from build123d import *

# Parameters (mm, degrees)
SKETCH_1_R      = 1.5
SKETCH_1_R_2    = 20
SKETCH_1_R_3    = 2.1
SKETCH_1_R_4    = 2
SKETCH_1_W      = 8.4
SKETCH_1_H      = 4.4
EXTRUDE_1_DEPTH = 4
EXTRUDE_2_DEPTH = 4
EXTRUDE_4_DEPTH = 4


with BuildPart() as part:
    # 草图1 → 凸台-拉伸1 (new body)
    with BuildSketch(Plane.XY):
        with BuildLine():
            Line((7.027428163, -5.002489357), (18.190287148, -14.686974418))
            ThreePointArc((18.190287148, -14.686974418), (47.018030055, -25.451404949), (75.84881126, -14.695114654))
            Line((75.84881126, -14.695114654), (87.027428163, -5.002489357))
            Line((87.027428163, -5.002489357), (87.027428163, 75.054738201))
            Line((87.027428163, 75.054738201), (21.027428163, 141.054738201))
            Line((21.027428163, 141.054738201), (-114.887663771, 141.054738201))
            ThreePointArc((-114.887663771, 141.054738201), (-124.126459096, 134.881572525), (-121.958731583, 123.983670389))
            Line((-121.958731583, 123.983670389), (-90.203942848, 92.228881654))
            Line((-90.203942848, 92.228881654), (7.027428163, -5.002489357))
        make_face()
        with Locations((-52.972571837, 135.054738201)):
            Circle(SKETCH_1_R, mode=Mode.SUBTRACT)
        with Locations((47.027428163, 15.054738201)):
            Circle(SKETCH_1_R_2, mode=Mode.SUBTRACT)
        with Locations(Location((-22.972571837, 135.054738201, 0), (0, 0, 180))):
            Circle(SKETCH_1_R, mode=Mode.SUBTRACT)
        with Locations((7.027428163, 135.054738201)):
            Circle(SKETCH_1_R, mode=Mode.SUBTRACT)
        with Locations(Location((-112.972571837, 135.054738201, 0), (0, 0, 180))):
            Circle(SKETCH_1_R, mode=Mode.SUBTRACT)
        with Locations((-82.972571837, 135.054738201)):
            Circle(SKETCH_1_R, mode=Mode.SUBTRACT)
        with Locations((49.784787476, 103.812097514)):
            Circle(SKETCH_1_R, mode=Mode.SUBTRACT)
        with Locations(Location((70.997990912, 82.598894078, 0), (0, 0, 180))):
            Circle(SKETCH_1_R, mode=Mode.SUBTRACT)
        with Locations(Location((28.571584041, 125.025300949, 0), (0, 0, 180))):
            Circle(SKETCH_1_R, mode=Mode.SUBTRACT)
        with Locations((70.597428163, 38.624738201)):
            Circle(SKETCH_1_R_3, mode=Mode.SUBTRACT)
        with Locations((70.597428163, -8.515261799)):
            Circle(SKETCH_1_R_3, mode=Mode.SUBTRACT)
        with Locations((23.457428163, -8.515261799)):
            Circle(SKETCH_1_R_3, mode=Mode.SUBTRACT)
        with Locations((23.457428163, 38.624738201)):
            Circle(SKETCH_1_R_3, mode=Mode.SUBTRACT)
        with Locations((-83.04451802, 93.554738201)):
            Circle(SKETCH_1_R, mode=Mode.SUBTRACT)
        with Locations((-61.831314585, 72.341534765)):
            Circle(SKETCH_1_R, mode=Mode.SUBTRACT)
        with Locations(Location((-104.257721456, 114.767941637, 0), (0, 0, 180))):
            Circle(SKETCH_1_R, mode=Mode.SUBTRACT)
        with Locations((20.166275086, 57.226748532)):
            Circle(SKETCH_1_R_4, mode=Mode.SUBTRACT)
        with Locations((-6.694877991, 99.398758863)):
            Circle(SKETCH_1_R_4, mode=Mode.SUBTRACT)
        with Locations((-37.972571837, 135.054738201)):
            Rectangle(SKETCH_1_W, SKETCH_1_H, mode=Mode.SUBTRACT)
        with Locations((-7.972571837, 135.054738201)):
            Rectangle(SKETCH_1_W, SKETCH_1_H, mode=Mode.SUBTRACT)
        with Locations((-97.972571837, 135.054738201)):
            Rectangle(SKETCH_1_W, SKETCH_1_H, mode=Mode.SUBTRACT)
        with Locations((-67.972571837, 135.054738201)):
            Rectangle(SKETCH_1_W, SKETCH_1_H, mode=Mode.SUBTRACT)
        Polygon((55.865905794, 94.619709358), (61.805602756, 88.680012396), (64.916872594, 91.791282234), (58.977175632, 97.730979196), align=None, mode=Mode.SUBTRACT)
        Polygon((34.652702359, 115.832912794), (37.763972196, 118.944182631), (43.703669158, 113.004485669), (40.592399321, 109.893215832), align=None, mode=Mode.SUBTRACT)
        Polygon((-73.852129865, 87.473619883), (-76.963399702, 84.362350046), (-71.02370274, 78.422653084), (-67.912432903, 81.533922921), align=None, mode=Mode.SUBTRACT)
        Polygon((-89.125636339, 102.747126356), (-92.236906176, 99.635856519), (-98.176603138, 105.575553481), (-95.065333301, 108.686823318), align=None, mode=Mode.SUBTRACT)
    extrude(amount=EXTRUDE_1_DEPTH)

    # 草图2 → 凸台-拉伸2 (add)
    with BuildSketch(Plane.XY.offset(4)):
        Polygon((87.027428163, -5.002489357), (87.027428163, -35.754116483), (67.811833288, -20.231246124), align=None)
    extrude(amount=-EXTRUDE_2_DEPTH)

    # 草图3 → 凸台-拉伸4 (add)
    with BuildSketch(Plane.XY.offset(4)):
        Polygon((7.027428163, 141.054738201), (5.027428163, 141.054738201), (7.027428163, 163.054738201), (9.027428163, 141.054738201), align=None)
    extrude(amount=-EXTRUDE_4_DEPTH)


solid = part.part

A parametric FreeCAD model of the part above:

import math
import FreeCAD as App
import Part
import Sketcher
Q = App.Units.Quantity


def add_polygon(sketch, points):
    """Adds a closed chain of lines whose ends are joined by coincident constraints."""
    first, n = sketch.GeometryCount, len(points)
    for a, b in zip(points, points[1:] + points[:1]):
        sketch.addGeometry(Part.LineSegment(App.Vector(*a, 0), App.Vector(*b, 0)), False)
    for i in range(n):
        sketch.addConstraint(Sketcher.Constraint("Coincident", first + i, 2, first + (i + 1) % n, 1))

doc = App.newDocument("Part")
params = doc.addObject("Spreadsheet::Sheet", "Params")
for row, (alias, value) in enumerate([
    ("sketch1_diameter", "40 mm"),
    ("sketch1_diameter2", "4 mm"),
    ("sketch1_diameter3", "3 mm"),
    ("sketch1_radius", "44 mm"),
    ("sketch1_radius2", "10 mm"),
    ("pad1_length", "4 mm"),
    ("pad2_length", "4 mm"),
    ("sketch3_width", "4 mm"),
    ("pad3_length", "4 mm"),
], start=1):
    params.set(f"A{row}", alias)
    params.set(f"B{row}", "=" + value)
    params.setAlias(f"B{row}", alias)

body = doc.addObject("PartDesign::Body", "Body")

# Sketch on XY plane
sketch1 = body.newObject("Sketcher::SketchObject", "Sketch")
sketch1.AttachmentSupport = (doc.getObject("XY_Plane"), [""])
sketch1.MapMode = "FlatFace"
sketch1.addGeometry(Part.LineSegment(App.Vector(7.027428, -5.002489, 0), App.Vector(18.190287, -14.686974, 0)), False)  # 0
sketch1.addGeometry(Part.ArcOfCircle(Part.Circle(App.Vector(47.024242, 18.548595, 0), App.Vector(0, 0, 1), 44), math.radians(-130.943703), math.radians(-49.072475)), False)  # 1
sketch1.addGeometry(Part.LineSegment(App.Vector(75.848811, -14.695115, 0), App.Vector(87.027428, -5.002489, 0)), False)  # 2
sketch1.addGeometry(Part.LineSegment(App.Vector(87.027428, -5.002489, 0), App.Vector(87.027428, 75.054738, 0)), False)  # 3
sketch1.addGeometry(Part.LineSegment(App.Vector(87.027428, 75.054738, 0), App.Vector(21.027428, 141.054738, 0)), False)  # 4
sketch1.addGeometry(Part.LineSegment(App.Vector(21.027428, 141.054738, 0), App.Vector(-114.887664, 141.054738, 0)), False)  # 5
sketch1.addGeometry(Part.ArcOfCircle(Part.Circle(App.Vector(-114.887664, 131.054738, 0), App.Vector(0, 0, 1), 10), math.radians(90), math.radians(225)), False)  # 6
sketch1.addGeometry(Part.LineSegment(App.Vector(-121.958732, 123.98367, 0), App.Vector(7.027428, -5.002489, 0)), False)  # 7
sketch1.addGeometry(Part.Circle(App.Vector(23.457428, -8.515262, 0), App.Vector(0, 0, 1), 2.1), False)  # 8
sketch1.addGeometry(Part.Circle(App.Vector(70.597428, -8.515262, 0), App.Vector(0, 0, 1), 2.1), False)  # 9
sketch1.addGeometry(Part.Circle(App.Vector(47.027428, 15.054738, 0), App.Vector(0, 0, 1), 20), False)  # 10
sketch1.addGeometry(Part.Circle(App.Vector(23.457428, 38.624738, 0), App.Vector(0, 0, 1), 2.1), False)  # 11
sketch1.addGeometry(Part.Circle(App.Vector(20.166275, 57.226749, 0), App.Vector(0, 0, 1), 2), False)  # 12
sketch1.addGeometry(Part.Circle(App.Vector(70.597428, 38.624738, 0), App.Vector(0, 0, 1), 2.1), False)  # 13
add_polygon(sketch1, [(-76.9634, 84.36235), (-73.85213, 87.47362), (-67.912433, 81.533923), (-71.023703, 78.422653)])  # lines 14-17
sketch1.addGeometry(Part.Circle(App.Vector(-83.044518, 93.554738, 0), App.Vector(0, 0, 1), 1.5), False)  # 18
sketch1.addGeometry(Part.Circle(App.Vector(-61.831315, 72.341535, 0), App.Vector(0, 0, 1), 1.5), False)  # 19
add_polygon(sketch1, [(-95.065333, 108.686823), (-89.125636, 102.747126), (-92.236906, 99.635857), (-98.176603, 105.575553)])  # lines 20-23
sketch1.addGeometry(Part.Circle(App.Vector(-104.257721, 114.767942, 0), App.Vector(0, 0, 1), 1.5), False)  # 24
sketch1.addGeometry(Part.Circle(App.Vector(-112.972572, 135.054738, 0), App.Vector(0, 0, 1), 1.5), False)  # 25
add_polygon(sketch1, [(-93.772572, 132.854738), (-102.172572, 132.854738), (-102.172572, 137.254738), (-93.772572, 137.254738)])  # lines 26-29
sketch1.addGeometry(Part.Circle(App.Vector(-82.972572, 135.054738, 0), App.Vector(0, 0, 1), 1.5), False)  # 30
add_polygon(sketch1, [(-63.772572, 132.854738), (-72.172572, 132.854738), (-72.172572, 137.254738), (-63.772572, 137.254738)])  # lines 31-34
sketch1.addGeometry(Part.Circle(App.Vector(-52.972572, 135.054738, 0), App.Vector(0, 0, 1), 1.5), False)  # 35
add_polygon(sketch1, [(-33.772572, 132.854738), (-42.172572, 132.854738), (-42.172572, 137.254738), (-33.772572, 137.254738)])  # lines 36-39
sketch1.addGeometry(Part.Circle(App.Vector(-22.972572, 135.054738, 0), App.Vector(0, 0, 1), 1.5), False)  # 40
sketch1.addGeometry(Part.Circle(App.Vector(-6.694878, 99.398759, 0), App.Vector(0, 0, 1), 2), False)  # 41
sketch1.addGeometry(Part.Circle(App.Vector(70.997991, 82.598894, 0), App.Vector(0, 0, 1), 1.5), False)  # 42
add_polygon(sketch1, [(61.805603, 88.680012), (55.865906, 94.619709), (58.977176, 97.730979), (64.916873, 91.791282)])  # lines 43-46
add_polygon(sketch1, [(-3.772572, 132.854738), (-12.172572, 132.854738), (-12.172572, 137.254738), (-3.772572, 137.254738)])  # lines 47-50
sketch1.addGeometry(Part.Circle(App.Vector(7.027428, 135.054738, 0), App.Vector(0, 0, 1), 1.5), False)  # 51
add_polygon(sketch1, [(40.592399, 109.893216), (34.652702, 115.832913), (37.763972, 118.944183), (43.703669, 113.004486)])  # lines 52-55
sketch1.addGeometry(Part.Circle(App.Vector(49.784787, 103.812098, 0), App.Vector(0, 0, 1), 1.5), False)  # 56
sketch1.addGeometry(Part.Circle(App.Vector(28.571584, 125.025301, 0), App.Vector(0, 0, 1), 1.5), False)  # 57
sketch1.addConstraint(Sketcher.Constraint("Tangent", 0, 2, 1, 1))
sketch1.addConstraint(Sketcher.Constraint("Tangent", 1, 2, 2, 1))
sketch1.addConstraint(Sketcher.Constraint("Coincident", 2, 2, 3, 1))
sketch1.addConstraint(Sketcher.Constraint("Coincident", 3, 2, 4, 1))
sketch1.addConstraint(Sketcher.Constraint("Coincident", 4, 2, 5, 1))
sketch1.addConstraint(Sketcher.Constraint("Tangent", 5, 2, 6, 1))
sketch1.addConstraint(Sketcher.Constraint("Tangent", 6, 2, 7, 1))
sketch1.addConstraint(Sketcher.Constraint("Coincident", 7, 2, 0, 1))
sketch1.addConstraint(Sketcher.Constraint("Vertical", 3))
sketch1.addConstraint(Sketcher.Constraint("Horizontal", 5))
sketch1.addConstraint(Sketcher.Constraint("Horizontal", 26))
sketch1.addConstraint(Sketcher.Constraint("Vertical", 27))
sketch1.addConstraint(Sketcher.Constraint("Horizontal", 28))
sketch1.addConstraint(Sketcher.Constraint("Vertical", 29))
sketch1.addConstraint(Sketcher.Constraint("Horizontal", 31))
sketch1.addConstraint(Sketcher.Constraint("Vertical", 32))
sketch1.addConstraint(Sketcher.Constraint("Horizontal", 33))
sketch1.addConstraint(Sketcher.Constraint("Vertical", 34))
sketch1.addConstraint(Sketcher.Constraint("Horizontal", 36))
sketch1.addConstraint(Sketcher.Constraint("Vertical", 37))
sketch1.addConstraint(Sketcher.Constraint("Horizontal", 38))
sketch1.addConstraint(Sketcher.Constraint("Vertical", 39))
sketch1.addConstraint(Sketcher.Constraint("Horizontal", 47))
sketch1.addConstraint(Sketcher.Constraint("Vertical", 48))
sketch1.addConstraint(Sketcher.Constraint("Horizontal", 49))
sketch1.addConstraint(Sketcher.Constraint("Vertical", 50))
sketch1.addConstraint(Sketcher.Constraint("Equal", 8, 9))
sketch1.addConstraint(Sketcher.Constraint("Equal", 9, 11))
sketch1.addConstraint(Sketcher.Constraint("Equal", 11, 13))
sketch1.addConstraint(Sketcher.Constraint("Equal", 18, 19))
sketch1.addConstraint(Sketcher.Constraint("Equal", 19, 24))
sketch1.addConstraint(Sketcher.Constraint("Equal", 24, 25))
sketch1.addConstraint(Sketcher.Constraint("Equal", 25, 30))
sketch1.addConstraint(Sketcher.Constraint("Equal", 30, 35))
sketch1.addConstraint(Sketcher.Constraint("Equal", 35, 40))
sketch1.addConstraint(Sketcher.Constraint("Equal", 12, 41))
sketch1.addConstraint(Sketcher.Constraint("Equal", 40, 42))
sketch1.addConstraint(Sketcher.Constraint("Equal", 42, 51))
sketch1.addConstraint(Sketcher.Constraint("Equal", 51, 56))
sketch1.addConstraint(Sketcher.Constraint("Equal", 56, 57))
sketch1.addConstraint(Sketcher.Constraint("Parallel", 4, 7))
sketch1.addConstraint(Sketcher.Constraint("Perpendicular", 7, 14))
sketch1.addConstraint(Sketcher.Constraint("Perpendicular", 14, 15))
sketch1.addConstraint(Sketcher.Constraint("Perpendicular", 15, 16))
sketch1.addConstraint(Sketcher.Constraint("Perpendicular", 16, 17))
sketch1.addConstraint(Sketcher.Constraint("Parallel", 17, 20))
sketch1.addConstraint(Sketcher.Constraint("Perpendicular", 20, 21))
sketch1.addConstraint(Sketcher.Constraint("Perpendicular", 21, 22))
sketch1.addConstraint(Sketcher.Constraint("Perpendicular", 22, 23))
sketch1.addConstraint(Sketcher.Constraint("Perpendicular", 23, 43))
sketch1.addConstraint(Sketcher.Constraint("Perpendicular", 43, 44))
sketch1.addConstraint(Sketcher.Constraint("Perpendicular", 44, 45))
sketch1.addConstraint(Sketcher.Constraint("Perpendicular", 45, 46))
sketch1.addConstraint(Sketcher.Constraint("Perpendicular", 46, 52))
sketch1.addConstraint(Sketcher.Constraint("Perpendicular", 52, 53))
sketch1.addConstraint(Sketcher.Constraint("Perpendicular", 53, 54))
sketch1.addConstraint(Sketcher.Constraint("Perpendicular", 54, 55))
sketch1.addConstraint(Sketcher.Constraint("Horizontal", 8, 3, 9, 3))
sketch1.addConstraint(Sketcher.Constraint("Horizontal", 11, 3, 13, 3))
sketch1.addConstraint(Sketcher.Constraint("Horizontal", 25, 3, 30, 3))
sketch1.addConstraint(Sketcher.Constraint("Horizontal", 30, 3, 35, 3))
sketch1.addConstraint(Sketcher.Constraint("Horizontal", 35, 3, 40, 3))
sketch1.addConstraint(Sketcher.Constraint("Horizontal", 40, 3, 51, 3))
sketch1.addConstraint(Sketcher.Constraint("Horizontal", 2, 2, 7, 2))
sketch1.addConstraint(Sketcher.Constraint("Horizontal", 29, 2, 31, 2))
sketch1.addConstraint(Sketcher.Constraint("Horizontal", 28, 2, 32, 2))
sketch1.addConstraint(Sketcher.Constraint("Horizontal", 34, 2, 36, 2))
sketch1.addConstraint(Sketcher.Constraint("Horizontal", 33, 2, 37, 2))
sketch1.addConstraint(Sketcher.Constraint("Horizontal", 39, 2, 47, 2))
sketch1.addConstraint(Sketcher.Constraint("Horizontal", 38, 2, 48, 2))
sketch1.addConstraint(Sketcher.Constraint("Vertical", 8, 3, 11, 3))
sketch1.addConstraint(Sketcher.Constraint("Vertical", 9, 3, 13, 3))
sketch1.addConstraint(Sketcher.Constraint("Vertical", 51, 3, 7, 2))
sketch1.addConstraint(Sketcher.Constraint("Equal", 28, 31))
sketch1.addConstraint(Sketcher.Constraint("Equal", 33, 36))
sketch1.addConstraint(Sketcher.Constraint("Equal", 38, 47))
sketch1.addConstraint(Sketcher.Constraint("Equal", 17, 20))
sketch1.addConstraint(Sketcher.Constraint("Equal", 16, 21))
sketch1.addConstraint(Sketcher.Constraint("Equal", 22, 43))
sketch1.addConstraint(Sketcher.Constraint("Equal", 23, 44))
sketch1.addConstraint(Sketcher.Constraint("Equal", 45, 52))
sketch1.addConstraint(Sketcher.Constraint("Equal", 46, 53))
sketch1.addConstraint(Sketcher.Constraint("Diameter", 10, 40.0))
sketch1.addConstraint(Sketcher.Constraint("Diameter", 12, 4.0))
sketch1.addConstraint(Sketcher.Constraint("Diameter", 18, 3.0))
sketch1.addConstraint(Sketcher.Constraint("Radius", 1, 44.0))
sketch1.addConstraint(Sketcher.Constraint("Radius", 6, 10.0))
sketch1.addConstraint(Sketcher.Constraint("Diameter", 8, 4.2))
sketch1.addConstraint(Sketcher.Constraint("Angle", 4, Q("135 deg")))
sketch1.addConstraint(Sketcher.Constraint("DistanceX", 26, 2, 26, 1, 8.4))
sketch1.addConstraint(Sketcher.Constraint("DistanceY", 27, 1, 27, 2, 4.4))
sketch1.addConstraint(Sketcher.Constraint("DistanceY", 10, 3, 6, 3, 116.0))
sketch1.addConstraint(Sketcher.Constraint("DistanceY", 6, 3, 25, 3, 4.0))
sketch1.addConstraint(Sketcher.Constraint("DistanceX", 25, 3, 30, 3, 30.0))
sketch1.addConstraint(Sketcher.Constraint("DistanceX", 30, 3, 35, 3, 30.0))
sketch1.addConstraint(Sketcher.Constraint("DistanceX", 35, 3, 40, 3, 30.0))
sketch1.addConstraint(Sketcher.Constraint("DistanceX", 40, 3, 51, 3, 30.0))
sketch1.addConstraint(Sketcher.Constraint("DistanceX", 10, 3, 2, 2, 40.0))
sketch1.addConstraint(Sketcher.Constraint("DistanceX", 51, 3, 4, 2, 14.0))
sketch1.addConstraint(Sketcher.Constraint("DistanceX", 7, 2, 10, 3, 40.0))
sketch1.addConstraint(Sketcher.Constraint("DistanceX", 26, 2, 31, 2, 30.0))
sketch1.addConstraint(Sketcher.Constraint("DistanceX", 31, 2, 36, 2, 30.0))
sketch1.addConstraint(Sketcher.Constraint("DistanceX", 36, 2, 47, 2, 30.0))
sketch1.addConstraint(Sketcher.Constraint("Distance", 14, 4.4))
sketch1.addConstraint(Sketcher.Constraint("Distance", 15, 8.4))
sketch1.addConstraint(Sketcher.Constraint("DistanceY", 18, 3, 6, 3, 37.5))
sketch1.addConstraint(Sketcher.Constraint("DistanceX", 25, 3, 26, 2, 10.8))
sketch1.addConstraint(Sketcher.Constraint("DistanceY", 26, 2, 25, 3, 2.2))
sketch1.addConstraint(Sketcher.Constraint("DistanceY", 8, 3, 6, 3, 139.57))
sketch1.addConstraint(Sketcher.Constraint("DistanceX", 8, 3, 9, 3, 47.14))
sketch1.addConstraint(Sketcher.Constraint("DistanceX", 10, 3, 9, 3, 23.57))
sketch1.addConstraint(Sketcher.Constraint("DistanceY", 10, 3, 11, 3, 23.57))
sketch1.addConstraint(Sketcher.Constraint("DistanceX", 5, 2, 5, 1, 135.915092))
sketch1.addConstraint(Sketcher.Constraint("DistanceY", -1, 1, 57, 3, 125.025301))
sketch1.addConstraint(Sketcher.Constraint("DistanceX", 17, 2, -1, 1, 76.9634))
sketch1.addConstraint(Sketcher.Constraint("DistanceX", -1, 1, 55, 2, 40.592399))
sketch1.addConstraint(Sketcher.Constraint("DistanceY", 1, 3, 42, 3, 64.050299))
sketch1.addConstraint(Sketcher.Constraint("DistanceX", -1, 1, 1, 3, 47.024242))
sketch1.addConstraint(Sketcher.Constraint("DistanceY", -1, 1, 6, 3, 131.054738))
sketch1.addConstraint(Sketcher.Constraint("DistanceX", -1, 1, 8, 3, 23.457428))
sketch1.addConstraint(Sketcher.Constraint("DistanceY", -1, 1, 12, 3, 57.226749))
sketch1.addConstraint(Sketcher.Constraint("DistanceX", 18, 3, -1, 1, 83.044518))
sketch1.addConstraint(Sketcher.Constraint("DistanceX", 24, 3, -1, 1, 104.257721))
sketch1.addConstraint(Sketcher.Constraint("DistanceY", -1, 1, 24, 3, 114.767942))
sketch1.addConstraint(Sketcher.Constraint("DistanceY", -1, 1, 41, 3, 99.398759))
sketch1.addConstraint(Sketcher.Constraint("DistanceX", -1, 1, 42, 3, 70.997991))
sketch1.addConstraint(Sketcher.Constraint("DistanceX", -1, 1, 1, 2, 75.848811))
sketch1.addConstraint(Sketcher.Constraint("DistanceY", -1, 1, 14, 2, 87.47362))
sketch1.addConstraint(Sketcher.Constraint("DistanceY", -1, 1, 43, 2, 94.619709))
sketch1.addConstraint(Sketcher.Constraint("DistanceX", 6, 3, 19, 3, 53.056349))
sketch1.addConstraint(Sketcher.Constraint("DistanceX", 19, 3, 12, 3, 81.99759))
sketch1.addConstraint(Sketcher.Constraint("DistanceX", 51, 3, 56, 3, 42.757359))
sketch1.addConstraint(Sketcher.Constraint("DistanceY", 56, 3, 51, 3, 31.242641))
sketch1.addConstraint(Sketcher.Constraint("DistanceY", 19, 3, 15, 2, 9.192388))
sketch1.addConstraint(Sketcher.Constraint("DistanceX", 20, 2, 18, 3, 6.081118))
sketch1.addConstraint(Sketcher.Constraint("DistanceY", 18, 3, 20, 2, 9.192388))
sketch1.addConstraint(Sketcher.Constraint("DistanceX", 56, 3, 43, 2, 6.081118))
sketch1.addConstraint(Sketcher.Constraint("DistanceX", 57, 3, 43, 2, 27.294322))
sketch1.addConstraint(Sketcher.Constraint("DistanceY", 52, 2, 57, 3, 9.192388))
sketch1.addConstraint(Sketcher.Constraint("DistanceX", 41, 3, -1, 1, 6.694878))
sketch1.setExpression("Constraints[114]", "Params.sketch1_diameter")
sketch1.setExpression("Constraints[115]", "Params.sketch1_diameter2")
sketch1.setExpression("Constraints[116]", "Params.sketch1_diameter3")
sketch1.setExpression("Constraints[117]", "Params.sketch1_radius")
sketch1.setExpression("Constraints[118]", "Params.sketch1_radius2")
pad1 = body.newObject("PartDesign::Pad", "Pad")
pad1.Profile = sketch1
pad1.setExpression("Length", "Params.pad1_length")

# Sketch on XY plane
sketch2 = body.newObject("Sketcher::SketchObject", "Sketch001")
sketch2.AttachmentSupport = (doc.getObject("XY_Plane"), [""])
sketch2.MapMode = "FlatFace"
sketch2.AttachmentOffset = App.Placement(App.Vector(0, 0, 4), App.Rotation())
add_polygon(sketch2, [(87.027428, -35.754116), (87.027428, -5.002489), (67.811833, -20.231246)])  # lines 0-2
sketch2.addConstraint(Sketcher.Constraint("Vertical", 0))
sketch2.addConstraint(Sketcher.Constraint("Distance", 2, 24.702198))
sketch2.addConstraint(Sketcher.Constraint("DistanceY", 0, 1, 0, 2, 30.751627))
sketch2.addConstraint(Sketcher.Constraint("DistanceX", -1, 1, 0, 2, 87.027428))
sketch2.addConstraint(Sketcher.Constraint("DistanceY", 0, 2, -1, 1, 5.002489))
sketch2.addConstraint(Sketcher.Constraint("DistanceY", 2, 2, 1, 2, 15.52287))
pad2 = body.newObject("PartDesign::Pad", "Pad001")
pad2.Profile = sketch2
pad2.setExpression("Length", "Params.pad2_length")
pad2.Reversed = True

# Sketch on XY plane
sketch3 = body.newObject("Sketcher::SketchObject", "Sketch002")
sketch3.AttachmentSupport = (doc.getObject("XY_Plane"), [""])
sketch3.MapMode = "FlatFace"
sketch3.AttachmentOffset = App.Placement(App.Vector(0, 0, 4), App.Rotation())
add_polygon(sketch3, [(5.027428, 141.054738), (9.027428, 141.054738), (7.027428, 163.054738)])  # lines 0-2
sketch3.addConstraint(Sketcher.Constraint("Horizontal", 0))
sketch3.addConstraint(Sketcher.Constraint("Equal", 1, 2))
sketch3.addConstraint(Sketcher.Constraint("DistanceX", 0, 1, 0, 2, 4.0))
sketch3.addConstraint(Sketcher.Constraint("DistanceY", 0, 2, 1, 2, 22.0))
sketch3.addConstraint(Sketcher.Constraint("DistanceX", -1, 1, 0, 2, 9.027428))
sketch3.addConstraint(Sketcher.Constraint("DistanceY", -1, 1, 0, 2, 141.054738))
sketch3.setExpression("Constraints[5]", "Params.sketch3_width")
pad3 = body.newObject("PartDesign::Pad", "Pad002")
pad3.Profile = sketch3
pad3.setExpression("Length", "Params.pad3_length")
pad3.Reversed = True

doc.recompute()
